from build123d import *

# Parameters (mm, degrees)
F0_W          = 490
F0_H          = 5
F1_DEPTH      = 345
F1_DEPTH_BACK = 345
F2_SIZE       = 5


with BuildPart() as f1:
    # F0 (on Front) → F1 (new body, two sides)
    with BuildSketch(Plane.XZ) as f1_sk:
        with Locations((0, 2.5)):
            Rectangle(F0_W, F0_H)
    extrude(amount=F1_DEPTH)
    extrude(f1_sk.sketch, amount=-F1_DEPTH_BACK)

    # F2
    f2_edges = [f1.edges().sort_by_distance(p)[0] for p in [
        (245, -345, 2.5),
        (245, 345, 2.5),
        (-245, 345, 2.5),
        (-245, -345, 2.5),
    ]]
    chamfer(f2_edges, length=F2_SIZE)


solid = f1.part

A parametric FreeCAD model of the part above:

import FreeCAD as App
import Part
import Sketcher
from FreeCAD import Vector
Q = App.Units.Quantity


def edges_at(feature, points):
    """Names of the edges that pass closest to the given points."""
    edges = feature.Shape.Edges
    near = lambda p: min(range(len(edges)), key=lambda i: edges[i].distToShape(Part.Vertex(*p))[0])
    return sorted({f"Edge{near(p) + 1}" for p in points})

doc = App.newDocument("Part")
body = doc.addObject("PartDesign::Body", "Body")

sketch1 = body.newObject("Sketcher::SketchObject", "Sketch")
sketch1.AttachmentSupport = (doc.getObject("XZ_Plane"), [""])
sketch1.MapMode = "FlatFace"
sketch1.addGeometry([
    Part.LineSegment(Vector(-245, 5, 0), Vector(-245, 0, 0)),
    Part.LineSegment(Vector(-245, 0, 0), Vector(245, 0, 0)),
    Part.LineSegment(Vector(245, 0, 0), Vector(245, 5, 0)),
    Part.LineSegment(Vector(245, 5, 0), Vector(-245, 5, 0)),
], False)
sketch1.addConstraint([
    Sketcher.Constraint("Coincident", 0, 2, 1, 1),
    Sketcher.Constraint("Coincident", 1, 2, 2, 1),
    Sketcher.Constraint("Coincident", 2, 2, 3, 1),
    Sketcher.Constraint("Coincident", 3, 2, 0, 1),
    Sketcher.Constraint("Vertical", 0),
    Sketcher.Constraint("Horizontal", 1),
    Sketcher.Constraint("Vertical", 2),
    Sketcher.Constraint("Horizontal", 3),
    Sketcher.Constraint("Symmetric", 0, 2, 1, 2, -1, 1),
    Sketcher.Constraint("DistanceX", 1, 1, 1, 2, Q("490 mm")),
    Sketcher.Constraint("DistanceY", 0, 2, 0, 1, Q("5 mm")),
])
pad1 = body.newObject("PartDesign::Pad", "Pad")
pad1.Profile = sketch1
pad1.Type = "TwoLengths"
pad1.Length = 345
pad1.Length2 = 345
doc.recompute()

chamfer = body.newObject("PartDesign::Chamfer", "Chamfer")
chamfer.Base = (pad1, edges_at(pad1, [
    (245, -345, 2.5),
    (245, 345, 2.5),
    (-245, 345, 2.5),
    (-245, -345, 2.5),
]))
chamfer.Size = 5

doc.recompute()
